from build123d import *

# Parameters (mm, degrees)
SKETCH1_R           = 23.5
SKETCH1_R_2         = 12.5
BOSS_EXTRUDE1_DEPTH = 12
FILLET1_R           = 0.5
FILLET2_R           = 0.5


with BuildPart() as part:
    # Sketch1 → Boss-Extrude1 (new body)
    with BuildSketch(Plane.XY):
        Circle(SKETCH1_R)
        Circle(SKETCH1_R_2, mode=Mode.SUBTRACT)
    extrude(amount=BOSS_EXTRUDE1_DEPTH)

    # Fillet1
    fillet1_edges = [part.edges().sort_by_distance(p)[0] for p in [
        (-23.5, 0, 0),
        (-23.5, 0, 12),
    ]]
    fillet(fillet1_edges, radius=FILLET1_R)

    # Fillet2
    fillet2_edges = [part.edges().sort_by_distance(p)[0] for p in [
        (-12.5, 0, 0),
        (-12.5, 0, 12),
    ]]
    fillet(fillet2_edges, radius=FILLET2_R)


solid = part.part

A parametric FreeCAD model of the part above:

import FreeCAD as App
import Part
import Sketcher

V = App.Vector


def edges_at(feature, points):
    """Names of the edges that pass closest to the given points."""
    edges = feature.Shape.Edges
    near = lambda p: min(range(len(edges)), key=lambda i: edges[i].distToShape(Part.Vertex(*p))[0])
    return sorted({f"Edge{near(p) + 1}" for p in points})

doc = App.newDocument("Part")
body = doc.addObject("PartDesign::Body", "Body")

# Sketch on XY plane
sketch1 = body.newObject("Sketcher::SketchObject", "Sketch")
sketch1.AttachmentSupport = (doc.getObject("XY_Plane"), [""])
sketch1.MapMode = "FlatFace"
sketch1.addGeometry([
    Part.Circle(V(0, 0, 0), V(0, 0, 1), 24),
    Part.Circle(V(0, 0, 0), V(0, 0, 1), 12),
], False)
sketch1.addConstraint([
    Sketcher.Constraint("Coincident", 0, 3, -1, 1),
    Sketcher.Constraint("Coincident", 1, 3, -1, 1),
    Sketcher.Constraint("Diameter", 0, 47.0),
    Sketcher.Constraint("Diameter", 1, 25.0),
])
pad1 = body.newObject("PartDesign::Pad", "Pad")
pad1.Profile = sketch1
pad1.Length = 12
doc.recompute()

fillet = body.newObject("PartDesign::Fillet", "Fillet")
fillet.Base = (pad1, edges_at(pad1, [(-23.5, 0, 0), (-23.5, 0, 12)]))
fillet.Radius = 0.5
doc.recompute()

fillet2 = body.newObject("PartDesign::Fillet", "Fillet001")
fillet2.Base = (fillet, edges_at(fillet, [(-12.5, 0, 0), (-12.5, 0, 12)]))
fillet2.Radius = 0.5

doc.recompute()
